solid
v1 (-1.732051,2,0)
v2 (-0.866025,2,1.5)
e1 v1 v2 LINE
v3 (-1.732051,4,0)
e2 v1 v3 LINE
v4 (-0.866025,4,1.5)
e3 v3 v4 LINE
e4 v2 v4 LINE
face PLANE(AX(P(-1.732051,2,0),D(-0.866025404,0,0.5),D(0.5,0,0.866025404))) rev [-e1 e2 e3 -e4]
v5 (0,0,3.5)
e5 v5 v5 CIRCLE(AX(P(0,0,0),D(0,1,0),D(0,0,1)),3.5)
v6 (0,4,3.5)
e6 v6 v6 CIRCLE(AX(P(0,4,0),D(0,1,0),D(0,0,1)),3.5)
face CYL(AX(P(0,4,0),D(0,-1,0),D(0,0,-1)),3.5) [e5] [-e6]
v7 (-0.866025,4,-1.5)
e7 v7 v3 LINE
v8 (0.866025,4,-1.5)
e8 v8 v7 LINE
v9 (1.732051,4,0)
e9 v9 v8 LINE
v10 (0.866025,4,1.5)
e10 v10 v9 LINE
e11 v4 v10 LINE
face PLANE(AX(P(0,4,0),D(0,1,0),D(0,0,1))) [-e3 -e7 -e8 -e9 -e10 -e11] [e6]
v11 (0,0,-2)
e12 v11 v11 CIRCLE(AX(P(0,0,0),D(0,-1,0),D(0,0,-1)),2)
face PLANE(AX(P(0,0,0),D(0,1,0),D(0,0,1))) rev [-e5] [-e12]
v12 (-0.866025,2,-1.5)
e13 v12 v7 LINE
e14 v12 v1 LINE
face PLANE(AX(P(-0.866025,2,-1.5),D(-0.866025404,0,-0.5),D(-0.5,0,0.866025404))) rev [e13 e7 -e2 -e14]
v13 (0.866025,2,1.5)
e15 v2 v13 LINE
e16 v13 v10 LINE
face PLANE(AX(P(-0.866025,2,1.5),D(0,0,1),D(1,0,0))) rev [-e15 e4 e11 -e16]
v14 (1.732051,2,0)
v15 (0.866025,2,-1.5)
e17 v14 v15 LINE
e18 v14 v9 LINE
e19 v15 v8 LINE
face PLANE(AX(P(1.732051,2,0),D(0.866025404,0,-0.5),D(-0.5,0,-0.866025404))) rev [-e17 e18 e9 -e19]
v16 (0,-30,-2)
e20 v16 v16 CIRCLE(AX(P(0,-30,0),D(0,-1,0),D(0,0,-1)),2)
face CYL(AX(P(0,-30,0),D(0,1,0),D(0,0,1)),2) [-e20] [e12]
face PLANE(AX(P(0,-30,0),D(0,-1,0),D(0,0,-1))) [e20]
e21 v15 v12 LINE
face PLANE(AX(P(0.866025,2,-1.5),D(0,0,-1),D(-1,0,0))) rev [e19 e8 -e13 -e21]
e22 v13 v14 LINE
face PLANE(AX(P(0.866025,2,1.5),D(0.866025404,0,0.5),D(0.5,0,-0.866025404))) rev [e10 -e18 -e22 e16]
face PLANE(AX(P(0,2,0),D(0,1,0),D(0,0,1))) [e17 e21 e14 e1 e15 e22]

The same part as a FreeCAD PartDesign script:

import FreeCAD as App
import Part
import Sketcher

V = App.Vector
Q = App.Units.Quantity


def add_polygon(sketch, points):
    """Adds a closed chain of lines whose ends are joined by coincident constraints."""
    first, n = sketch.GeometryCount, len(points)
    for a, b in zip(points, points[1:] + points[:1]):
        sketch.addGeometry(Part.LineSegment(App.Vector(*a, 0), App.Vector(*b, 0)), False)
    for i in range(n):
        sketch.addConstraint(Sketcher.Constraint("Coincident", first + i, 2, first + (i + 1) % n, 1))

doc = App.newDocument("Part")
params = doc.addObject("Spreadsheet::Sheet", "Params")
for row, (alias, value) in enumerate([
    ("sketch1_diameter", "7 mm"),
    ("pad1_length", "4 mm"),
    ("pocket1_length", "2 mm"),
    ("sketch3_diameter", "4 mm"),
    ("pad2_length", "30 mm"),
], start=1):
    params.set(f"A{row}", alias)
    params.set(f"B{row}", "=" + value)
    params.setAlias(f"B{row}", alias)

body = doc.addObject("PartDesign::Body", "Body")

# Sketch on XZ plane
sketch1 = doc.addObject("Sketcher::SketchObject", "Sketch")
body.addObject(sketch1)
sketch1.AttachmentSupport = (doc.XZ_Plane, [""])
sketch1.MapMode = "FlatFace"
sketch1.addGeometry(Part.Circle(V(0, 0, 0), V(0, 0, 1), 3.5), False)
sketch1.addConstraint([
    Sketcher.Constraint("Coincident", 0, 3, -1, 1),
    Sketcher.Constraint("Diameter", 0, Q("7 mm")),
])
sketch1.setExpression("Constraints[1]", "Params.sketch1_diameter")
pad1 = doc.addObject("PartDesign::Pad", "Pad")
body.addObject(pad1)
pad1.Profile = sketch1
pad1.setExpression("Length", "Params.pad1_length")
pad1.Reversed = True

# Sketch on XZ plane
sketch2 = doc.addObject("Sketcher::SketchObject", "Sketch001")
body.addObject(sketch2)
sketch2.AttachmentSupport = (doc.XZ_Plane, [""])
sketch2.MapMode = "FlatFace"
sketch2.AttachmentOffset = App.Placement(V(0, 0, -4), App.Rotation())
add_polygon(sketch2, [(1.7, 0), (0.9, -1.5), (-0.9, -1.5), (-1.7, 0), (-0.9, 1.5), (0.9, 1.5)])  # lines 0-5
sketch2.addConstraint([
    Sketcher.Constraint("Horizontal", 1),
    Sketcher.Constraint("Horizontal", 4),
    Sketcher.Constraint("Symmetric", 0, 2, 3, 2, -1, 1),
    Sketcher.Constraint("Symmetric", 2, 2, 5, 2, -1, 1),
    Sketcher.Constraint("PointOnObject", 2, 2, -1),
    Sketcher.Constraint("Parallel", 2, 5),
    Sketcher.Constraint("Vertical", 1, 2, 3, 2),
    Sketcher.Constraint("Angle", 0, Q("-120 deg")),
    Sketcher.Constraint("DistanceY", 1, 2, 3, 2, Q("3 mm")),
    Sketcher.Constraint("DistanceX", 1, 2, 1, 1, Q("1.732051 mm")),
])
pocket1 = doc.addObject("PartDesign::Pocket", "Pocket")
body.addObject(pocket1)
pocket1.Profile = sketch2
pocket1.setExpression("Length", "Params.pocket1_length")
pocket1.Reversed = True

# Sketch on XZ plane
sketch3 = doc.addObject("Sketcher::SketchObject", "Sketch002")
body.addObject(sketch3)
sketch3.AttachmentSupport = (doc.XZ_Plane, [""])
sketch3.MapMode = "FlatFace"
sketch3.addGeometry(Part.Circle(V(0, 0, 0), V(0, 0, 1), 2), False)
sketch3.addConstraint([
    Sketcher.Constraint("Coincident", 0, 3, -1, 1),
    Sketcher.Constraint("Diameter", 0, Q("4 mm")),
])
sketch3.setExpression("Constraints[1]", "Params.sketch3_diameter")
pad2 = doc.addObject("PartDesign::Pad", "Pad001")
body.addObject(pad2)
pad2.Profile = sketch3
pad2.setExpression("Length", "Params.pad2_length")

doc.recompute()
